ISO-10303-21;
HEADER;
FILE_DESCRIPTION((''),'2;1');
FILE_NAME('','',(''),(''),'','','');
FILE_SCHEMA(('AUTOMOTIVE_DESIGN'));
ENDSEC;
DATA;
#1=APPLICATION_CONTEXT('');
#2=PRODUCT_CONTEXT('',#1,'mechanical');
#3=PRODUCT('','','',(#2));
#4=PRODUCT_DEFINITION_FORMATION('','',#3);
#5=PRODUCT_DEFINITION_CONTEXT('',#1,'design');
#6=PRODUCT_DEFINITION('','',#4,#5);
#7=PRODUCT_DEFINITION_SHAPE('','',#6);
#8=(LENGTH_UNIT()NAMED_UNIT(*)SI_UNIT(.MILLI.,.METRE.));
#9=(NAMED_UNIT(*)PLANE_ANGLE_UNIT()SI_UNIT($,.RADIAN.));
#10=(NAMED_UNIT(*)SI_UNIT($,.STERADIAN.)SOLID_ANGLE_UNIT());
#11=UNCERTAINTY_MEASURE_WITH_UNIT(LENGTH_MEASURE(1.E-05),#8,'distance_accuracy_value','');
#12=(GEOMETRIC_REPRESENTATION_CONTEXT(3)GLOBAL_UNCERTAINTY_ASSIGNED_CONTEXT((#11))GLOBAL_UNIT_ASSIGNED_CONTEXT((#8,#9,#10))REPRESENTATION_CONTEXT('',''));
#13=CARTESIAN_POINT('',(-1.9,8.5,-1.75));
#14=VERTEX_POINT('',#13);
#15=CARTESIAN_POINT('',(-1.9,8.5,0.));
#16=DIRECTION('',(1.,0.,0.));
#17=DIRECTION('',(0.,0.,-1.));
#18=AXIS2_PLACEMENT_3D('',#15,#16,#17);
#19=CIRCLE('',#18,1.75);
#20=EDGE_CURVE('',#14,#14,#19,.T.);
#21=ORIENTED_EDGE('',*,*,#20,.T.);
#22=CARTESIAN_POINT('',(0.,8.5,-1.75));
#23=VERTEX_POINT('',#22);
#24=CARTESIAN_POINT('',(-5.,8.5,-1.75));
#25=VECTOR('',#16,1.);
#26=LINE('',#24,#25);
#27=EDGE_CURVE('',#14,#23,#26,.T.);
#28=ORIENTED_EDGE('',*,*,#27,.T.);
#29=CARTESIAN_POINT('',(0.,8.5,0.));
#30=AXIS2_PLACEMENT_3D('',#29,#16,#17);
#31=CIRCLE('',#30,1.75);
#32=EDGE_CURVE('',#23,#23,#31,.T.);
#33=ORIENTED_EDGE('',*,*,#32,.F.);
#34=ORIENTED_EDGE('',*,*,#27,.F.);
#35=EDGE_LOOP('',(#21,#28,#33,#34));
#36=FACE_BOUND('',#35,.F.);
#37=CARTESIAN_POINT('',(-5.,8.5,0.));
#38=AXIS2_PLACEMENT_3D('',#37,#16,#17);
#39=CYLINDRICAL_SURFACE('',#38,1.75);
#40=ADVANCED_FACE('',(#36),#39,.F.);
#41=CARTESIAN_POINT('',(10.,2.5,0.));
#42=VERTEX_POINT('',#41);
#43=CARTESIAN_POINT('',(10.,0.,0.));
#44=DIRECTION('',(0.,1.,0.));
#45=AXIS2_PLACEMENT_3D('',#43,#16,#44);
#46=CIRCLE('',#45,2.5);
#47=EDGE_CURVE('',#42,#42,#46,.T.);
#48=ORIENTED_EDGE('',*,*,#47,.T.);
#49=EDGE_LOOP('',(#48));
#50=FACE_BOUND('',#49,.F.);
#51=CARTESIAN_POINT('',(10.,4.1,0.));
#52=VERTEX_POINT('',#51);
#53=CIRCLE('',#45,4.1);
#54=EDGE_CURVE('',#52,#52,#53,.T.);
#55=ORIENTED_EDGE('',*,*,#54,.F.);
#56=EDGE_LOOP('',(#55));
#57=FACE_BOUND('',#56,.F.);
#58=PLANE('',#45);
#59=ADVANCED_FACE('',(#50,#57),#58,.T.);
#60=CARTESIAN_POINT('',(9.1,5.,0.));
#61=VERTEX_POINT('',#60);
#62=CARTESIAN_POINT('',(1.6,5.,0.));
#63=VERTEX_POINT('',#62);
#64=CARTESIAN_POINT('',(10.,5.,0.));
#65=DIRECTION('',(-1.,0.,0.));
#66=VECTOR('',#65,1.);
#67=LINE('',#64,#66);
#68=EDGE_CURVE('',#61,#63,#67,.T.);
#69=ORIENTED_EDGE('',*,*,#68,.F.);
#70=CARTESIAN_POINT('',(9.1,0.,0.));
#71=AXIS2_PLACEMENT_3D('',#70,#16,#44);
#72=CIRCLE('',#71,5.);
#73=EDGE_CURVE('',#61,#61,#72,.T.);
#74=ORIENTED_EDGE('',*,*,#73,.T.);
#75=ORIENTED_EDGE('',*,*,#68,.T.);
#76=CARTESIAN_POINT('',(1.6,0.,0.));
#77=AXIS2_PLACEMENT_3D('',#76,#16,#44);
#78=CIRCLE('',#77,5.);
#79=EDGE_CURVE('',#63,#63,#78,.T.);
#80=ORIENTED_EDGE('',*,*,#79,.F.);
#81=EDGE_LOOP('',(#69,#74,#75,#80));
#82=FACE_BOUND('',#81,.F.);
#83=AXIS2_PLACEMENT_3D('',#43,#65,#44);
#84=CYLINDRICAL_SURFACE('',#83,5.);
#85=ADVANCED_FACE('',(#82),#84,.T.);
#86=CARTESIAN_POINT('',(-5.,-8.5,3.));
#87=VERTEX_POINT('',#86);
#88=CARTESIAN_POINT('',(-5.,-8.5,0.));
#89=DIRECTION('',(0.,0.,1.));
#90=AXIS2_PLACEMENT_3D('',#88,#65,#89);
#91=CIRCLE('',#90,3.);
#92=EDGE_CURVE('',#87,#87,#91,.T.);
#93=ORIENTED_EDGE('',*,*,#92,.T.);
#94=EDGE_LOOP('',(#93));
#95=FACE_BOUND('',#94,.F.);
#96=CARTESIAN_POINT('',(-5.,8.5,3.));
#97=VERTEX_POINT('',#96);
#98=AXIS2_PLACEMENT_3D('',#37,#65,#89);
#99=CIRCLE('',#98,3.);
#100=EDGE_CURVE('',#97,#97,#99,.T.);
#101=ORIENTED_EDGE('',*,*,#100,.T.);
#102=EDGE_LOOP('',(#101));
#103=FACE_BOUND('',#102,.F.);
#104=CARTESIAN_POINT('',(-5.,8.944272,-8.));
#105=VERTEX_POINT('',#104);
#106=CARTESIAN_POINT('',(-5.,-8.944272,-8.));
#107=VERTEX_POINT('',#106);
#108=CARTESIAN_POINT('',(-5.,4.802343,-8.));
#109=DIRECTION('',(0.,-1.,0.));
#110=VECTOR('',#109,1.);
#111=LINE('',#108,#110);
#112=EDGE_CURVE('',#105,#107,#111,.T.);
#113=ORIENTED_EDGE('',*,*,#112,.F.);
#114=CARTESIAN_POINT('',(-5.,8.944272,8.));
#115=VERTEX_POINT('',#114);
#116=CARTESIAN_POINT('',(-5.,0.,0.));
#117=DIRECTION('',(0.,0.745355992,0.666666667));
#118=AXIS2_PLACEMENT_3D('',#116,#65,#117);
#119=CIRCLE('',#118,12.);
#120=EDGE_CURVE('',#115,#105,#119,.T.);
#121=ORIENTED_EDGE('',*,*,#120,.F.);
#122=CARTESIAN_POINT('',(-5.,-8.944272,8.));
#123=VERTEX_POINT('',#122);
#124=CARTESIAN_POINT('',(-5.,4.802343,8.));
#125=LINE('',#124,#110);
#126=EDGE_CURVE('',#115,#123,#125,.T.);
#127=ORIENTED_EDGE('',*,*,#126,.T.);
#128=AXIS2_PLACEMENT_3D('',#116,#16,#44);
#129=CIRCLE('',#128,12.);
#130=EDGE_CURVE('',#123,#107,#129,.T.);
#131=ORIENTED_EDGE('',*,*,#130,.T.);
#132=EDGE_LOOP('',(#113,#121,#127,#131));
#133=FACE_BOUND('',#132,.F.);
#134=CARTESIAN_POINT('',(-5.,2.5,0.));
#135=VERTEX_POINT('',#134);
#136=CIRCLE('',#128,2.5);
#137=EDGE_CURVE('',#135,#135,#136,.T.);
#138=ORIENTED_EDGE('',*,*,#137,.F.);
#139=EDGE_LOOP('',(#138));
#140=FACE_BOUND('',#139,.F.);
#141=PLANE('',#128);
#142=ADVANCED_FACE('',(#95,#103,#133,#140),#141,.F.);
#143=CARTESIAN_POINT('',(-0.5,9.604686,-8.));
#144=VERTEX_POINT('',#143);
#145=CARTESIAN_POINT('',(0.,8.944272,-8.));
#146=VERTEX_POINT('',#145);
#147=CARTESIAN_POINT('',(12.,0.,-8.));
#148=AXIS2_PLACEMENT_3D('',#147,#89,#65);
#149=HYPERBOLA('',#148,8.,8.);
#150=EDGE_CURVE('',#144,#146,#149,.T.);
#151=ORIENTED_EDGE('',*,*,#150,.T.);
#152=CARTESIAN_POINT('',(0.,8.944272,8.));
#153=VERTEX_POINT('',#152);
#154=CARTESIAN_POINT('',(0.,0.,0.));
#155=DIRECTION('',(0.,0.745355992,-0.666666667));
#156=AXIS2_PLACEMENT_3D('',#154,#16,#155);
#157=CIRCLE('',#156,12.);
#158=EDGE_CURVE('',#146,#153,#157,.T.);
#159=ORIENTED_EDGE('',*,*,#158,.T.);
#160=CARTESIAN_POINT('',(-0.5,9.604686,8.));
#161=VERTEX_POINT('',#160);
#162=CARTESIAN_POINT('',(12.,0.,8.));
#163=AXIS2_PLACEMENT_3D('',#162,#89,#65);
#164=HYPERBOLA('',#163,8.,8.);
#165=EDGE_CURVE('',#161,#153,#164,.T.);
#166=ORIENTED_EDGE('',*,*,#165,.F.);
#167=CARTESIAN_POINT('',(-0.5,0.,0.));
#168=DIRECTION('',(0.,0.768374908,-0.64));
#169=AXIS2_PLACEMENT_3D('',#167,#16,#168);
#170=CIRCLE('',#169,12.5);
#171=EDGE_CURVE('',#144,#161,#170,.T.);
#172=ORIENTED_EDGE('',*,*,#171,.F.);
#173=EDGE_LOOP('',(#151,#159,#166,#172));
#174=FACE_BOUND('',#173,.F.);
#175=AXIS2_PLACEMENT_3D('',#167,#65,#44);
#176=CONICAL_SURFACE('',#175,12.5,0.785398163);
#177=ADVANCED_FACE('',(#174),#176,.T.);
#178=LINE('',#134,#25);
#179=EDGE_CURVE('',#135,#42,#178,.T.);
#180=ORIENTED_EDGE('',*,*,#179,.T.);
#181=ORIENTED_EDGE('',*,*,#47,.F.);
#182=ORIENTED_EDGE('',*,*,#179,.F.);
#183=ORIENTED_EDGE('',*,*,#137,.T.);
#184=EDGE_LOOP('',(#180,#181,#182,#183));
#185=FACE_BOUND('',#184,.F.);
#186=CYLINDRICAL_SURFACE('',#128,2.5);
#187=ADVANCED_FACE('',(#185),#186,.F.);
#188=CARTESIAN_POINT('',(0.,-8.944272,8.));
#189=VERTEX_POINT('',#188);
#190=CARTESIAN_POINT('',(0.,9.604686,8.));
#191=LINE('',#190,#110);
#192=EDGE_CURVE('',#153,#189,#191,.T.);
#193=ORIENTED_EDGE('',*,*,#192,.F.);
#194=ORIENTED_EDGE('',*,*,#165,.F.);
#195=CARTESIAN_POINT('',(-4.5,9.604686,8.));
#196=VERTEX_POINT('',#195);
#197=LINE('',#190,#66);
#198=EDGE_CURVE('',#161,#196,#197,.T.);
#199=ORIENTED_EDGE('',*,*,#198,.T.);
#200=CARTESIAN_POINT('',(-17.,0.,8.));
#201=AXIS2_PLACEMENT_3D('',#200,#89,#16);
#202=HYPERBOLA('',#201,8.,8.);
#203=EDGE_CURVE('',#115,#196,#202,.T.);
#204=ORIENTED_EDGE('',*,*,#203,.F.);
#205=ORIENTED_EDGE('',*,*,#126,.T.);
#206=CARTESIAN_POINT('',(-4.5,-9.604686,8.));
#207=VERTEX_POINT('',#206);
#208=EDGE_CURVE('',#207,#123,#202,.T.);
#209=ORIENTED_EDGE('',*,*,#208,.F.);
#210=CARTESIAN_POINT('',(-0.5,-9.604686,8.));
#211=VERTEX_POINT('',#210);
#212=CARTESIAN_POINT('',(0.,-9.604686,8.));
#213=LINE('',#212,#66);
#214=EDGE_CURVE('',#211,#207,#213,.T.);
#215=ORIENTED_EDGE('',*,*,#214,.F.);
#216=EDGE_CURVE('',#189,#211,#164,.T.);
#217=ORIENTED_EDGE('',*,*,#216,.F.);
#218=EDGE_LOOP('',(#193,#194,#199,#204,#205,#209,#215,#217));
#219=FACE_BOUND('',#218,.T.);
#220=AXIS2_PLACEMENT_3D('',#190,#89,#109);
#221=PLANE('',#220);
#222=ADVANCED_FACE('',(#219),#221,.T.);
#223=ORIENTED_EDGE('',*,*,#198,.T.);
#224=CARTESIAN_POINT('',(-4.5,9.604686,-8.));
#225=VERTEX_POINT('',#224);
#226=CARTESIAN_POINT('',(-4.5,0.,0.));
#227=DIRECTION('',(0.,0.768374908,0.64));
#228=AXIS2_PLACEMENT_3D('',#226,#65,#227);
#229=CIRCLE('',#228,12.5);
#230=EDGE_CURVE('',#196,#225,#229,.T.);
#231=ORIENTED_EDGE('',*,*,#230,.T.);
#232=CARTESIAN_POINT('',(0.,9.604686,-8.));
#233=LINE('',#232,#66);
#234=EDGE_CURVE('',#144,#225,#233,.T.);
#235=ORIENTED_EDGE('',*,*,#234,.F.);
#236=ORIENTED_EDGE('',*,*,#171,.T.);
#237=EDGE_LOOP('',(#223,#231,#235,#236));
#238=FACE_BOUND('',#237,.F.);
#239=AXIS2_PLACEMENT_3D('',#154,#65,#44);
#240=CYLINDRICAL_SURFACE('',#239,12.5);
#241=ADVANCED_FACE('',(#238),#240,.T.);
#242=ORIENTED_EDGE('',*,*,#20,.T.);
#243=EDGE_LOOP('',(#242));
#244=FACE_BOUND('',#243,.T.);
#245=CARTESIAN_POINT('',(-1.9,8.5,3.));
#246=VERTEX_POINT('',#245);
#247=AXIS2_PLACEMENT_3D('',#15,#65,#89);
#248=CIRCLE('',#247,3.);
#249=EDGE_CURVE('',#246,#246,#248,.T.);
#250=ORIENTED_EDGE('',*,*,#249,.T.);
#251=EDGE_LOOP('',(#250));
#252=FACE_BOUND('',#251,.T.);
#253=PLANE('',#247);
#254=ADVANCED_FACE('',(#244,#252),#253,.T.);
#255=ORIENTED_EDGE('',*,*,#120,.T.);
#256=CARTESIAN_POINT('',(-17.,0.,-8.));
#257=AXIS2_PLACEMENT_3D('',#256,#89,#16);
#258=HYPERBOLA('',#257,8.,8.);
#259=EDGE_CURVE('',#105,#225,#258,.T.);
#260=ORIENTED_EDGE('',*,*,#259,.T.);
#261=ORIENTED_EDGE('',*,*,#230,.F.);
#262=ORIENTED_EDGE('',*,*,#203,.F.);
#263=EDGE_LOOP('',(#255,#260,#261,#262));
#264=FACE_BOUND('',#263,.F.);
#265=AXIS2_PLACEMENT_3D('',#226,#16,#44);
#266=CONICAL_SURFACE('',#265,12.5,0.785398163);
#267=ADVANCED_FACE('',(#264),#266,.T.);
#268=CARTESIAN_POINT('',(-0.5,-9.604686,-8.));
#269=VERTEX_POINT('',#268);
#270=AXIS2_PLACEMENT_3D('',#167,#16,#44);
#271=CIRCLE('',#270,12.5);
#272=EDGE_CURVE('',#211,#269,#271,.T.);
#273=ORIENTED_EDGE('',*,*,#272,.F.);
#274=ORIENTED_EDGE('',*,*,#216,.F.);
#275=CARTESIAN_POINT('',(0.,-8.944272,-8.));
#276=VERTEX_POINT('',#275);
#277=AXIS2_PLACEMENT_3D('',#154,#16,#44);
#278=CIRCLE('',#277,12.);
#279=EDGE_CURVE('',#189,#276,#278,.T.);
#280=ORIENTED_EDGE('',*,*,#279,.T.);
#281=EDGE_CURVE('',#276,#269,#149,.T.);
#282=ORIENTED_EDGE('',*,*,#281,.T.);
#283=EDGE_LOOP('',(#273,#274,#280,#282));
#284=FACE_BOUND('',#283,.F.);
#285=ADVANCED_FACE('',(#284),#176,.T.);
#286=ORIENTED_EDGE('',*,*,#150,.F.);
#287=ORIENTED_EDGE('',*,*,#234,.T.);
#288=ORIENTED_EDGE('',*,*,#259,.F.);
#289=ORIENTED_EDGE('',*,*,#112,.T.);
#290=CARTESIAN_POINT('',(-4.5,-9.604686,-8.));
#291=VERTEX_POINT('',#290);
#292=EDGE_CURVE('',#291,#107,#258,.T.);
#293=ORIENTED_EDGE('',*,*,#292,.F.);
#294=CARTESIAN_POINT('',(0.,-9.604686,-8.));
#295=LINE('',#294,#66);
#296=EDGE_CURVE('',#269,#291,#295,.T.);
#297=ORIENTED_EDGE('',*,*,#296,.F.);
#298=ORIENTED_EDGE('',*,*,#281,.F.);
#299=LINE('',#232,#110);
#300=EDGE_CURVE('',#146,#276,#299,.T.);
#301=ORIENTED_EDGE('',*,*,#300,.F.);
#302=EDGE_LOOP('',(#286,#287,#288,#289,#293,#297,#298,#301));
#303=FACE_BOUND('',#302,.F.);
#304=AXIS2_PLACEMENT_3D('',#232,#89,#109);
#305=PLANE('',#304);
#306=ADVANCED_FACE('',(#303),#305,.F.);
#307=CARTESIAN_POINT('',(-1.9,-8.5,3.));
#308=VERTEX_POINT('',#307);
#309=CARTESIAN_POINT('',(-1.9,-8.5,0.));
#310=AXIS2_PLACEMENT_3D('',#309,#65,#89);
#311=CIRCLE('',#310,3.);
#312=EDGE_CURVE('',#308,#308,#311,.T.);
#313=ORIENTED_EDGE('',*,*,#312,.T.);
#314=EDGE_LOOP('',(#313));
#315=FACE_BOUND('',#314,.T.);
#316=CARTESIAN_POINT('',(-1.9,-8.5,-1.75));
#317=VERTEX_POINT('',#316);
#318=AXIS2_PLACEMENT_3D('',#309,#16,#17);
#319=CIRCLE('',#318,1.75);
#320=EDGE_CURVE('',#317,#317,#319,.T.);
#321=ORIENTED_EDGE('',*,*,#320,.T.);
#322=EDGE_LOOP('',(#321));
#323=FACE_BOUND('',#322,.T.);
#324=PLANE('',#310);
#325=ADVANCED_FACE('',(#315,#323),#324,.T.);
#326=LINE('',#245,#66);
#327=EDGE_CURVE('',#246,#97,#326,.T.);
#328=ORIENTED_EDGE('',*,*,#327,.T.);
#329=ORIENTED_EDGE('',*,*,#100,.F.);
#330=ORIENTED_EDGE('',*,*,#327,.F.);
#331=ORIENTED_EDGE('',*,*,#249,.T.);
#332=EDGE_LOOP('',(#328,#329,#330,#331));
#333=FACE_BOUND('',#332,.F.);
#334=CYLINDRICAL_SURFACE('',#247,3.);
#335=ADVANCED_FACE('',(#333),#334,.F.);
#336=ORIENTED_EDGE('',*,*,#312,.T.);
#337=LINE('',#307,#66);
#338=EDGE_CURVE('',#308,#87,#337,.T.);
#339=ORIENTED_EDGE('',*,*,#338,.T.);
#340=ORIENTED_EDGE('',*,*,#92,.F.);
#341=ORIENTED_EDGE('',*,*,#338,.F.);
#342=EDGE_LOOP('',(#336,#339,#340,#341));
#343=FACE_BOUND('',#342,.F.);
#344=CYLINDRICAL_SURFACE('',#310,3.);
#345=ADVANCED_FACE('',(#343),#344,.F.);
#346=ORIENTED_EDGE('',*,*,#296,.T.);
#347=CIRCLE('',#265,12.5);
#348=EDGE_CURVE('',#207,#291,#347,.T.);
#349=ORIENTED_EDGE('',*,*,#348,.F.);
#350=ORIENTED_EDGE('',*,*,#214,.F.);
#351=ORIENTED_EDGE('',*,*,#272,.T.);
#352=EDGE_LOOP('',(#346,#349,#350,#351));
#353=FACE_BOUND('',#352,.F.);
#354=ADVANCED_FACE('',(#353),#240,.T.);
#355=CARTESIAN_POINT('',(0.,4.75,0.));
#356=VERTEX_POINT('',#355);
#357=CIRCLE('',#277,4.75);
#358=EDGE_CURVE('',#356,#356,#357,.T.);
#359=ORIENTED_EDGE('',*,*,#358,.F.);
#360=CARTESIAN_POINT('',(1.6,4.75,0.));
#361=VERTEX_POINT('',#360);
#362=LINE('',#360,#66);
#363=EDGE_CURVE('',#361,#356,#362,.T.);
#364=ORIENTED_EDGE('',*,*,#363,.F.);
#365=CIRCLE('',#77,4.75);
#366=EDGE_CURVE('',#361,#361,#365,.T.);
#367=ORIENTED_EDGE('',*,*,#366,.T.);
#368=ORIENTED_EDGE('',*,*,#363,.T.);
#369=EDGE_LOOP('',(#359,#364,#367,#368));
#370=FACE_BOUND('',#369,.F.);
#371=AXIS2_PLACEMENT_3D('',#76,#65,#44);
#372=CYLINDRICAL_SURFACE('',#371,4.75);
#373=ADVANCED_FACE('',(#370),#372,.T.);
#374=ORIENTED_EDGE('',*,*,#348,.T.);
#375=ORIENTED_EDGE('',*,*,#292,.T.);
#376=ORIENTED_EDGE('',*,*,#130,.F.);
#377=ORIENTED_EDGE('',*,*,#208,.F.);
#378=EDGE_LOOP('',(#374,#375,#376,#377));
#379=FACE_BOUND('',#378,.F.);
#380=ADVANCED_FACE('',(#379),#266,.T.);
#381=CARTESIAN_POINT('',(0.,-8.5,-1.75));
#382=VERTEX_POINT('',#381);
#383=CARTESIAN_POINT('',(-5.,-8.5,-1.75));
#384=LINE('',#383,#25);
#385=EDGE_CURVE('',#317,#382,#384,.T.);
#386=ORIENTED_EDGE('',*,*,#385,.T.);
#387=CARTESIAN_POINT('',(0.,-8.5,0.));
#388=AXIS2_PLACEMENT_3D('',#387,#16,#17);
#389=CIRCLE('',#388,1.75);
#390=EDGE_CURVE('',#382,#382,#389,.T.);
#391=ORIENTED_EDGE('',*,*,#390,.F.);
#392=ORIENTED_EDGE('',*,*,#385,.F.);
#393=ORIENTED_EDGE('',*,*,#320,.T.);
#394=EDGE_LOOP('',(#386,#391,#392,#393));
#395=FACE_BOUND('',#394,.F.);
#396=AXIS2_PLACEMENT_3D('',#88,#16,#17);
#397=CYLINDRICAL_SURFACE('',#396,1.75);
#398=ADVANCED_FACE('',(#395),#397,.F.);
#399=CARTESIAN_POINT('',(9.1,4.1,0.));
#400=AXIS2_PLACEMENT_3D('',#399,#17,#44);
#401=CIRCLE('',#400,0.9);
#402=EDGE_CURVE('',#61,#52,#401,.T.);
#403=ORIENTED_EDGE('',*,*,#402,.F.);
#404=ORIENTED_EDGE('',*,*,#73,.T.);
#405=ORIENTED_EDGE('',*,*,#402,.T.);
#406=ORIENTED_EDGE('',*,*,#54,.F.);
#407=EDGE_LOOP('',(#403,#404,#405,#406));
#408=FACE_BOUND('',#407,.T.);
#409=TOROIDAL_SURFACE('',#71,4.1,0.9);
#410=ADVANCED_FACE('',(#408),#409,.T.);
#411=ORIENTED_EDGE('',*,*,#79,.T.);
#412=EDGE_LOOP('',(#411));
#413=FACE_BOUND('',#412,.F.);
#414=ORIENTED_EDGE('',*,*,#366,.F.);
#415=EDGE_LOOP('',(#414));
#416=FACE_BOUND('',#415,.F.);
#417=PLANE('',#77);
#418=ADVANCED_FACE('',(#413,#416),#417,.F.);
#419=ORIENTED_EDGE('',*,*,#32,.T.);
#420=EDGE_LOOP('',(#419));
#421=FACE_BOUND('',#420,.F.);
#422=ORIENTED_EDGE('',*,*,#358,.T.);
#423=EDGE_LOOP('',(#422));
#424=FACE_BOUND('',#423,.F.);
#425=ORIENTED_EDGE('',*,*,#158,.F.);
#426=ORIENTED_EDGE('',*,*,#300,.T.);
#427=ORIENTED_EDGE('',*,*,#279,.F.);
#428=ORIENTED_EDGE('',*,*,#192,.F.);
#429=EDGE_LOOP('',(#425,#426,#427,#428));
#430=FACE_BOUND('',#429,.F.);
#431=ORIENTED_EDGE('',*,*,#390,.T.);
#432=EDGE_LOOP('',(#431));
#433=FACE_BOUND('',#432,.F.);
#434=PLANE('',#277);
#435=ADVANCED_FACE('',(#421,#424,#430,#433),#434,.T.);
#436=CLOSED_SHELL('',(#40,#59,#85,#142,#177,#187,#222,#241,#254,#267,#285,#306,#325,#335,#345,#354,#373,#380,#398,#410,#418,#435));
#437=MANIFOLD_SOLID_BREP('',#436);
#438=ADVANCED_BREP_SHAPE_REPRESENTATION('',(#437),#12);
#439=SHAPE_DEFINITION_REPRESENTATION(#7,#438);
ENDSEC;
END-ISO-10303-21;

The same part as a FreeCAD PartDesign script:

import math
import FreeCAD as App
import Part
import Sketcher
from FreeCAD import Vector
Q = App.Units.Quantity


def edges_at(feature, points):
    """Names of the edges that pass closest to the given points."""
    edges = feature.Shape.Edges
    near = lambda p: min(range(len(edges)), key=lambda i: edges[i].distToShape(Part.Vertex(*p))[0])
    return sorted({f"Edge{near(p) + 1}" for p in points})

doc = App.newDocument("Part")
body = doc.addObject("PartDesign::Body", "Body")

sketch1 = body.newObject("Sketcher::SketchObject", "Sketch")
sketch1.AttachmentSupport = (doc.getObject("XY_Plane"), [""])
sketch1.MapMode = "FlatFace"
sketch1.addGeometry([
    Part.LineSegment(Vector(-5, 2.5, 0), Vector(10, 2.5, 0)),
    Part.LineSegment(Vector(10, 2.5, 0), Vector(10, 5, 0)),
    Part.LineSegment(Vector(10, 5, 0), Vector(1.6, 5, 0)),
    Part.LineSegment(Vector(1.6, 5, 0), Vector(1.6, 4.75, 0)),
    Part.LineSegment(Vector(1.6, 4.75, 0), Vector(0, 4.75, 0)),
    Part.LineSegment(Vector(0, 4.75, 0), Vector(0, 12.5, 0)),
    Part.LineSegment(Vector(0, 12.5, 0), Vector(-5, 12.5, 0)),
    Part.LineSegment(Vector(-5, 12.5, 0), Vector(-5, 2.5, 0)),
], False)
sketch1.addConstraint([
    Sketcher.Constraint("Coincident", 0, 2, 1, 1),
    Sketcher.Constraint("Coincident", 1, 2, 2, 1),
    Sketcher.Constraint("Coincident", 2, 2, 3, 1),
    Sketcher.Constraint("Coincident", 3, 2, 4, 1),
    Sketcher.Constraint("Coincident", 4, 2, 5, 1),
    Sketcher.Constraint("Coincident", 5, 2, 6, 1),
    Sketcher.Constraint("Coincident", 6, 2, 7, 1),
    Sketcher.Constraint("Coincident", 7, 2, 0, 1),
    Sketcher.Constraint("Horizontal", 0),
    Sketcher.Constraint("Vertical", 1),
    Sketcher.Constraint("Horizontal", 2),
    Sketcher.Constraint("Vertical", 3),
    Sketcher.Constraint("Horizontal", 4),
    Sketcher.Constraint("Vertical", 5),
    Sketcher.Constraint("Horizontal", 6),
    Sketcher.Constraint("Vertical", 7),
    Sketcher.Constraint("PointOnObject", 4, 2, -2),
    Sketcher.Constraint("DistanceX", 0, 1, 0, 2, Q("15 mm")),
    Sketcher.Constraint("DistanceX", 6, 2, 6, 1, Q("5 mm")),
    Sketcher.Constraint("DistanceY", 7, 2, 7, 1, Q("10 mm")),
    Sketcher.Constraint("DistanceX", 2, 2, 2, 1, Q("8.4 mm")),
    Sketcher.Constraint("DistanceY", 1, 1, 1, 2, Q("2.5 mm")),
    Sketcher.Constraint("DistanceY", -1, 1, 1, 2, Q("5 mm")),
    Sketcher.Constraint("DistanceY", 3, 2, 3, 1, Q("0.25 mm")),
])
revolution = body.newObject("PartDesign::Revolution", "Revolution")
revolution.Profile = sketch1
revolution.ReferenceAxis = (sketch1, ["H_Axis"])
revolution.Angle = 360
doc.recompute()

chamfer = body.newObject("PartDesign::Chamfer", "Chamfer")
chamfer.Base = (revolution, edges_at(revolution, [(0, -12.5, 0), (-5, -12.5, 0)]))
chamfer.Size = 0.5
doc.recompute()

fillet = body.newObject("PartDesign::Fillet", "Fillet")
fillet.Base = (chamfer, edges_at(chamfer, [(10, -5, 0)]))
fillet.Radius = 0.9

sketch2 = body.newObject("Sketcher::SketchObject", "Sketch001")
sketch2.AttachmentSupport = (doc.getObject("YZ_Plane"), [""])
sketch2.MapMode = "FlatFace"
sketch2.addGeometry([
    Part.LineSegment(Vector(-9.604686, -8, 0), Vector(9.604686, -8, 0)),
    Part.ArcOfCircle(Part.Circle(Vector(0, 0, 0), Vector(0, 0, 1), 12.5), math.radians(-140.208181), math.radians(-39.791819)),
    Part.LineSegment(Vector(9.604686, 8, 0), Vector(-9.604686, 8, 0)),
    Part.ArcOfCircle(Part.Circle(Vector(0, 0, 0), Vector(0, 0, 1), 12.5), math.radians(39.791819), math.radians(140.208181)),
], False)
sketch2.addConstraint([
    Sketcher.Constraint("Coincident", 0, 1, 1, 1),
    Sketcher.Constraint("Coincident", 1, 2, 0, 2),
    Sketcher.Constraint("Coincident", 2, 1, 3, 1),
    Sketcher.Constraint("Coincident", 3, 2, 2, 2),
    Sketcher.Constraint("Horizontal", 0),
    Sketcher.Constraint("Horizontal", 2),
    Sketcher.Constraint("Coincident", 1, 3, -1, 1),
    Sketcher.Constraint("Coincident", 3, 3, -1, 1),
    Sketcher.Constraint("Equal", 1, 3),
    Sketcher.Constraint("Vertical", 1, 2, 2, 1),
    Sketcher.Constraint("Radius", 1, Q("12.5 mm")),
    Sketcher.Constraint("DistanceY", 0, 1, -1, 1, Q("8 mm")),
])
pocket1 = body.newObject("PartDesign::Pocket", "Pocket")
pocket1.Profile = sketch2
pocket1.Type = "ThroughAll"

sketch3 = body.newObject("Sketcher::SketchObject", "Sketch002")
sketch3.AttachmentSupport = (doc.getObject("YZ_Plane"), [""])
sketch3.MapMode = "FlatFace"
sketch3.AttachmentOffset = App.Placement(Vector(0, 0, -5), App.Rotation())
sketch3.addGeometry([
    Part.Circle(Vector(-8.5, 0, 0), Vector(0, 0, 1), 1.75),
    Part.Circle(Vector(8.5, 0, 0), Vector(0, 0, 1), 1.75),
], False)
sketch3.addConstraint([
    Sketcher.Constraint("Equal", 0, 1),
    Sketcher.Constraint("Symmetric", 0, 3, 1, 3, -1, 1),
    Sketcher.Constraint("PointOnObject", 0, 3, -1),
    Sketcher.Constraint("Diameter", 0, Q("3.5 mm")),
    Sketcher.Constraint("DistanceX", 0, 3, 1, 3, Q("17 mm")),
])
doc.recompute()
hole = body.newObject("PartDesign::Hole", "Hole")
hole.Profile = sketch3
hole.ThreadType = "None"
hole.Diameter = 3.5
hole.DepthType = "ThroughAll"
hole.HoleCutType = "Counterbore"
hole.HoleCutDiameter = 6
hole.HoleCutDepth = 3.1
hole.Reversed = True

doc.recompute()
